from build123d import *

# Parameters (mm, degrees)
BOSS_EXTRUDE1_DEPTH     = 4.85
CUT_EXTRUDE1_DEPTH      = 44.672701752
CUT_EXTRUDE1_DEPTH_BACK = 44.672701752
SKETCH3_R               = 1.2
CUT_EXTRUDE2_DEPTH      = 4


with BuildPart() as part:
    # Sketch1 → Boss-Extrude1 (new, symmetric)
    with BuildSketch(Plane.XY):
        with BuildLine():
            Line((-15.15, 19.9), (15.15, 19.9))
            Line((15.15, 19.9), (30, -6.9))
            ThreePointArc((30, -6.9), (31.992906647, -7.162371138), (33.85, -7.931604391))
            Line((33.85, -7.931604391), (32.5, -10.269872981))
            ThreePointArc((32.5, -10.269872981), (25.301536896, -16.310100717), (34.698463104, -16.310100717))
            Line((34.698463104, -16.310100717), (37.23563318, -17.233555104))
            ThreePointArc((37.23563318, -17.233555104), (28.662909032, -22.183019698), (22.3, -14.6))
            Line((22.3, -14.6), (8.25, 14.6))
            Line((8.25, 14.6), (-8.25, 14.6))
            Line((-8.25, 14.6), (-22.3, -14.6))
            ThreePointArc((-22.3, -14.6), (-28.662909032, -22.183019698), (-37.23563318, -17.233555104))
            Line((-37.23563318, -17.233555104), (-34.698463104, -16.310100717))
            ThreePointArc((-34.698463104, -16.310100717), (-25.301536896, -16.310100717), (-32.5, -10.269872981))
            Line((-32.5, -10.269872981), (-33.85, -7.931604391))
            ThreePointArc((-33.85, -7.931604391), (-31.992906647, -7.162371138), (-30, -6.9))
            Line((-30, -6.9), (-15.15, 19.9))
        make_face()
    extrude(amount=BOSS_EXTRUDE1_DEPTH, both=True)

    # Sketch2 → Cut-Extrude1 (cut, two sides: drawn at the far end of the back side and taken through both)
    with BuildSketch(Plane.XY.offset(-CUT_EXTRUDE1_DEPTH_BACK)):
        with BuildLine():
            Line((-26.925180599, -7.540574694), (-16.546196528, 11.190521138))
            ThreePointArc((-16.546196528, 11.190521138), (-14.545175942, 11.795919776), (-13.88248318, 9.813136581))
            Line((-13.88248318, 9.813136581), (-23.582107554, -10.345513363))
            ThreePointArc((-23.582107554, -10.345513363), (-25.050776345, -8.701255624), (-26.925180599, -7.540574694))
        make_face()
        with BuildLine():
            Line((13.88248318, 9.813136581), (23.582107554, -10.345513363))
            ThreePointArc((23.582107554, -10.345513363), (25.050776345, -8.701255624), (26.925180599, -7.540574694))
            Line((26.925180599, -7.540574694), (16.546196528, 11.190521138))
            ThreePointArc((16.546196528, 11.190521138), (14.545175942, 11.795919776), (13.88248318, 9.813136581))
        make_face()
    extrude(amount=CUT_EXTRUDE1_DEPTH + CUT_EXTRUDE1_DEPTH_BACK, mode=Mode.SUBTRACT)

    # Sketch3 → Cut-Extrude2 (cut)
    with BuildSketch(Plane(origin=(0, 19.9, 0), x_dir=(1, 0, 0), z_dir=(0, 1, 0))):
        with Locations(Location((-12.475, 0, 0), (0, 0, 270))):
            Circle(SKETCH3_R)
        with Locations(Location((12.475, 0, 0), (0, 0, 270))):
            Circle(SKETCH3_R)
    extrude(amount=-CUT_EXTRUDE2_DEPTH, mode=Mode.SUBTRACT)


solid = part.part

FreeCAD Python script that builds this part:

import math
import FreeCAD as App
import Part
import Sketcher
Q = App.Units.Quantity

doc = App.newDocument("Part")
params = doc.addObject("Spreadsheet::Sheet", "Params")
for row, (alias, value) in enumerate([
    ("sketch1_radius", "5 mm"),
    ("sketch1_radius2", "7.7 mm"),
    ("sketch1_width", "30.3 mm"),
    ("sketch1_width2", "16.5 mm"),
    ("pad1_length", "9.7 mm"),
    ("sketch2_radius", "7.7 mm"),
    ("sketch2_radius2", "1.5 mm"),
    ("sketch3_diameter", "2.4 mm"),
    ("pocket2_length", "4 mm"),
], start=1):
    params.set(f"A{row}", alias)
    params.set(f"B{row}", "=" + value)
    params.setAlias(f"B{row}", alias)

body = doc.addObject("PartDesign::Body", "Body")

sketch1 = body.newObject("Sketcher::SketchObject", "Sketch")
sketch1.AttachmentSupport = (doc.getObject("XY_Plane"), [""])
sketch1.MapMode = "FlatFace"
sketch1.addGeometry(Part.LineSegment(App.Vector(15.15, 19.9, 0), App.Vector(-15.15, 19.9, 0)), False)
sketch1.addGeometry(Part.LineSegment(App.Vector(-15.15, 19.9, 0), App.Vector(-30, -6.9, 0)), False)
sketch1.addGeometry(Part.ArcOfCircle(Part.Circle(App.Vector(-30, -14.6, 0), App.Vector(0, 0, 1), 7.7), math.radians(90), math.radians(120)), False)
sketch1.addGeometry(Part.LineSegment(App.Vector(-33.85, -7.931604, 0), App.Vector(-32.5, -10.269873, 0)), False)
sketch1.addGeometry(Part.ArcOfCircle(Part.Circle(App.Vector(-30, -14.6, 0), App.Vector(0, 0, 1), 5), math.radians(-160), math.radians(120)), False)
sketch1.addGeometry(Part.LineSegment(App.Vector(-34.698463, -16.310101, 0), App.Vector(-37.235633, -17.233555, 0)), False)
sketch1.addGeometry(Part.ArcOfCircle(Part.Circle(App.Vector(-30, -14.6, 0), App.Vector(0, 0, 1), 7.7), math.radians(-160), math.radians(0)), False)
sketch1.addGeometry(Part.LineSegment(App.Vector(-22.3, -14.6, 0), App.Vector(-8.25, 14.6, 0)), False)
sketch1.addGeometry(Part.LineSegment(App.Vector(-8.25, 14.6, 0), App.Vector(8.25, 14.6, 0)), False)
sketch1.addGeometry(Part.LineSegment(App.Vector(8.25, 14.6, 0), App.Vector(22.3, -14.6, 0)), False)
sketch1.addGeometry(Part.ArcOfCircle(Part.Circle(App.Vector(30, -14.6, 0), App.Vector(0, 0, 1), 7.7), math.radians(180), math.radians(340)), False)
sketch1.addGeometry(Part.LineSegment(App.Vector(37.235633, -17.233555, 0), App.Vector(34.698463, -16.310101, 0)), False)
sketch1.addGeometry(Part.ArcOfCircle(Part.Circle(App.Vector(30, -14.6, 0), App.Vector(0, 0, 1), 5), math.radians(60), math.radians(340)), False)
sketch1.addGeometry(Part.LineSegment(App.Vector(32.5, -10.269873, 0), App.Vector(33.85, -7.931604, 0)), False)
sketch1.addGeometry(Part.ArcOfCircle(Part.Circle(App.Vector(30, -14.6, 0), App.Vector(0, 0, 1), 7.7), math.radians(60), math.radians(90)), False)
sketch1.addGeometry(Part.LineSegment(App.Vector(30, -6.9, 0), App.Vector(15.15, 19.9, 0)), False)
sketch1.addConstraint(Sketcher.Constraint("Coincident", 0, 2, 1, 1))
sketch1.addConstraint(Sketcher.Constraint("Coincident", 1, 2, 2, 1))
sketch1.addConstraint(Sketcher.Constraint("Coincident", 2, 2, 3, 1))
sketch1.addConstraint(Sketcher.Constraint("Coincident", 3, 2, 4, 2))
sketch1.addConstraint(Sketcher.Constraint("Coincident", 4, 1, 5, 1))
sketch1.addConstraint(Sketcher.Constraint("Coincident", 5, 2, 6, 1))
sketch1.addConstraint(Sketcher.Constraint("Coincident", 6, 2, 7, 1))
sketch1.addConstraint(Sketcher.Constraint("Coincident", 7, 2, 8, 1))
sketch1.addConstraint(Sketcher.Constraint("Coincident", 8, 2, 9, 1))
sketch1.addConstraint(Sketcher.Constraint("Coincident", 9, 2, 10, 1))
sketch1.addConstraint(Sketcher.Constraint("Coincident", 10, 2, 11, 1))
sketch1.addConstraint(Sketcher.Constraint("Coincident", 11, 2, 12, 2))
sketch1.addConstraint(Sketcher.Constraint("Coincident", 12, 1, 13, 1))
sketch1.addConstraint(Sketcher.Constraint("Coincident", 13, 2, 14, 1))
sketch1.addConstraint(Sketcher.Constraint("Coincident", 14, 2, 15, 1))
sketch1.addConstraint(Sketcher.Constraint("Coincident", 15, 2, 0, 1))
sketch1.addConstraint(Sketcher.Constraint("Horizontal", 0))
sketch1.addConstraint(Sketcher.Constraint("Horizontal", 8))
sketch1.addConstraint(Sketcher.Constraint("Coincident", 4, 3, 2, 3))
sketch1.addConstraint(Sketcher.Constraint("Coincident", 6, 3, 2, 3))
sketch1.addConstraint(Sketcher.Constraint("Coincident", 12, 3, 10, 3))
sketch1.addConstraint(Sketcher.Constraint("Coincident", 14, 3, 10, 3))
sketch1.addConstraint(Sketcher.Constraint("Equal", 2, 6))
sketch1.addConstraint(Sketcher.Constraint("Equal", 6, 10))
sketch1.addConstraint(Sketcher.Constraint("Equal", 4, 12))
sketch1.addConstraint(Sketcher.Constraint("Equal", 10, 14))
sketch1.addConstraint(Sketcher.Constraint("Symmetric", 2, 3, 10, 3, -2))
sketch1.addConstraint(Sketcher.Constraint("Horizontal", 14, 3, 6, 2))
sketch1.addConstraint(Sketcher.Constraint("Horizontal", 6, 2, 9, 2))
sketch1.addConstraint(Sketcher.Constraint("Horizontal", 5, 2, 10, 2))
sketch1.addConstraint(Sketcher.Constraint("Horizontal", 4, 1, 11, 2))
sketch1.addConstraint(Sketcher.Constraint("Horizontal", 3, 2, 12, 1))
sketch1.addConstraint(Sketcher.Constraint("Horizontal", 2, 2, 13, 2))
sketch1.addConstraint(Sketcher.Constraint("Vertical", 6, 3, 1, 2))
sketch1.addConstraint(Sketcher.Constraint("Vertical", 12, 3, 14, 2))
sketch1.addConstraint(Sketcher.Constraint("Equal", 7, 9))
sketch1.addConstraint(Sketcher.Constraint("Equal", 1, 15))
sketch1.addConstraint(Sketcher.Constraint("Radius", 4, Q("5 mm")))
sketch1.addConstraint(Sketcher.Constraint("Radius", 2, Q("7.7 mm")))
sketch1.addConstraint(Sketcher.Constraint("Angle", 3, Q("-60 deg")))
sketch1.addConstraint(Sketcher.Constraint("Angle", 5, Q("-160 deg")))
sketch1.addConstraint(Sketcher.Constraint("DistanceX", 0, 2, 0, 1, Q("30.3 mm")))
sketch1.addConstraint(Sketcher.Constraint("DistanceX", 8, 1, 8, 2, Q("16.5 mm")))
sketch1.addConstraint(Sketcher.Constraint("DistanceX", 2, 3, -1, 1, Q("30 mm")))
sketch1.addConstraint(Sketcher.Constraint("DistanceY", 2, 3, -1, 1, Q("14.6 mm")))
sketch1.addConstraint(Sketcher.Constraint("DistanceY", -1, 1, 0, 2, Q("19.9 mm")))
sketch1.addConstraint(Sketcher.Constraint("DistanceX", 3, 2, -1, 1, Q("32.5 mm")))
sketch1.addConstraint(Sketcher.Constraint("DistanceY", -1, 1, 7, 2, Q("14.6 mm")))
sketch1.addConstraint(Sketcher.Constraint("DistanceY", 4, 1, -1, 1, Q("16.310101 mm")))
sketch1.setExpression("Constraints[37]", "Params.sketch1_radius")
sketch1.setExpression("Constraints[38]", "Params.sketch1_radius2")
sketch1.setExpression("Constraints[41]", "Params.sketch1_width")
sketch1.setExpression("Constraints[42]", "Params.sketch1_width2")
pad1 = body.newObject("PartDesign::Pad", "Pad")
pad1.Profile = sketch1
pad1.setExpression("Length", "Params.pad1_length")
pad1.Midplane = True

sketch2 = body.newObject("Sketcher::SketchObject", "Sketch001")
sketch2.AttachmentSupport = (doc.getObject("XY_Plane"), [""])
sketch2.MapMode = "FlatFace"
sketch2.addGeometry(Part.LineSegment(App.Vector(-16.546197, 11.190521, 0), App.Vector(-26.925181, -7.540575, 0)), False)
sketch2.addGeometry(Part.ArcOfCircle(Part.Circle(App.Vector(-30, -14.6, 0), App.Vector(0, 0, 1), 7.7), math.radians(33.540806), math.radians(66.463875)), False)
sketch2.addGeometry(Part.LineSegment(App.Vector(-23.582108, -10.345513, 0), App.Vector(-13.882483, 9.813137, 0)), False)
sketch2.addGeometry(Part.ArcOfCircle(Part.Circle(App.Vector(-15.234153, 10.463512, 0), App.Vector(0, 0, 1), 1.5), math.radians(-25.695203), math.radians(151.008967)), False)
sketch2.addGeometry(Part.LineSegment(App.Vector(13.882483, 9.813137, 0), App.Vector(23.582108, -10.345513, 0)), False)
sketch2.addGeometry(Part.ArcOfCircle(Part.Circle(App.Vector(30, -14.6, 0), App.Vector(0, 0, 1), 7.7), math.radians(113.536125), math.radians(146.459194)), False)
sketch2.addGeometry(Part.LineSegment(App.Vector(26.925181, -7.540575, 0), App.Vector(16.546197, 11.190521, 0)), False)
sketch2.addGeometry(Part.ArcOfCircle(Part.Circle(App.Vector(15.234153, 10.463512, 0), App.Vector(0, 0, 1), 1.5), math.radians(28.991033), math.radians(205.695203)), False)
sketch2.addConstraint(Sketcher.Constraint("Coincident", 0, 2, 1, 2))
sketch2.addConstraint(Sketcher.Constraint("Coincident", 1, 1, 2, 1))
sketch2.addConstraint(Sketcher.Constraint("Tangent", 2, 2, 3, 1))
sketch2.addConstraint(Sketcher.Constraint("Tangent", 3, 2, 0, 1))
sketch2.addConstraint(Sketcher.Constraint("Coincident", 4, 2, 5, 2))
sketch2.addConstraint(Sketcher.Constraint("Coincident", 5, 1, 6, 1))
sketch2.addConstraint(Sketcher.Constraint("Tangent", 6, 2, 7, 1))
sketch2.addConstraint(Sketcher.Constraint("Tangent", 7, 2, 4, 1))
sketch2.addConstraint(Sketcher.Constraint("Equal", 1, 5))
sketch2.addConstraint(Sketcher.Constraint("Equal", 3, 7))
sketch2.addConstraint(Sketcher.Constraint("Symmetric", 1, 3, 5, 3, -2))
sketch2.addConstraint(Sketcher.Constraint("Symmetric", 3, 3, 7, 3, -2))
sketch2.addConstraint(Sketcher.Constraint("Horizontal", 1, 1, 4, 2))
sketch2.addConstraint(Sketcher.Constraint("Horizontal", 0, 2, 5, 1))
sketch2.addConstraint(Sketcher.Constraint("Radius", 1, Q("7.7 mm")))
sketch2.addConstraint(Sketcher.Constraint("Radius", 3, Q("1.5 mm")))
sketch2.addConstraint(Sketcher.Constraint("DistanceX", 1, 3, -1, 1, Q("30 mm")))
sketch2.addConstraint(Sketcher.Constraint("DistanceY", 1, 3, -1, 1, Q("14.6 mm")))
sketch2.addConstraint(Sketcher.Constraint("DistanceX", 0, 2, -1, 1, Q("26.925181 mm")))
sketch2.addConstraint(Sketcher.Constraint("DistanceY", -1, 1, 3, 2, Q("11.190521 mm")))
sketch2.addConstraint(Sketcher.Constraint("DistanceY", 1, 1, 0, 2, Q("2.804939 mm")))
sketch2.addConstraint(Sketcher.Constraint("DistanceX", 1, 1, 7, 3, Q("38.816261 mm")))
sketch2.setExpression("Constraints[14]", "Params.sketch2_radius")
sketch2.setExpression("Constraints[15]", "Params.sketch2_radius2")
pocket1 = body.newObject("PartDesign::Pocket", "Pocket")
pocket1.Profile = sketch2
pocket1.Type = "ThroughAll"
pocket1.Midplane = True

sketch3 = body.newObject("Sketcher::SketchObject", "Sketch002")
sketch3.AttachmentSupport = (doc.getObject("XZ_Plane"), [""])
sketch3.MapMode = "FlatFace"
sketch3.AttachmentOffset = App.Placement(App.Vector(0, 0, -19.9), App.Rotation())
sketch3.addGeometry(Part.Circle(App.Vector(-12.475, 0, 0), App.Vector(0, 0, 1), 1.2), False)
sketch3.addGeometry(Part.Circle(App.Vector(12.475, 0, 0), App.Vector(0, 0, 1), 1.2), False)
sketch3.addConstraint(Sketcher.Constraint("Equal", 0, 1))
sketch3.addConstraint(Sketcher.Constraint("Symmetric", 0, 3, 1, 3, -1, 1))
sketch3.addConstraint(Sketcher.Constraint("PointOnObject", 0, 3, -1))
sketch3.addConstraint(Sketcher.Constraint("Diameter", 0, Q("2.4 mm")))
sketch3.addConstraint(Sketcher.Constraint("DistanceX", 0, 3, 1, 3, Q("24.95 mm")))
sketch3.setExpression("Constraints[3]", "Params.sketch3_diameter")
pocket2 = body.newObject("PartDesign::Pocket", "Pocket001")
pocket2.Profile = sketch3
pocket2.setExpression("Length", "Params.pocket2_length")
pocket2.Reversed = True

doc.recompute()
